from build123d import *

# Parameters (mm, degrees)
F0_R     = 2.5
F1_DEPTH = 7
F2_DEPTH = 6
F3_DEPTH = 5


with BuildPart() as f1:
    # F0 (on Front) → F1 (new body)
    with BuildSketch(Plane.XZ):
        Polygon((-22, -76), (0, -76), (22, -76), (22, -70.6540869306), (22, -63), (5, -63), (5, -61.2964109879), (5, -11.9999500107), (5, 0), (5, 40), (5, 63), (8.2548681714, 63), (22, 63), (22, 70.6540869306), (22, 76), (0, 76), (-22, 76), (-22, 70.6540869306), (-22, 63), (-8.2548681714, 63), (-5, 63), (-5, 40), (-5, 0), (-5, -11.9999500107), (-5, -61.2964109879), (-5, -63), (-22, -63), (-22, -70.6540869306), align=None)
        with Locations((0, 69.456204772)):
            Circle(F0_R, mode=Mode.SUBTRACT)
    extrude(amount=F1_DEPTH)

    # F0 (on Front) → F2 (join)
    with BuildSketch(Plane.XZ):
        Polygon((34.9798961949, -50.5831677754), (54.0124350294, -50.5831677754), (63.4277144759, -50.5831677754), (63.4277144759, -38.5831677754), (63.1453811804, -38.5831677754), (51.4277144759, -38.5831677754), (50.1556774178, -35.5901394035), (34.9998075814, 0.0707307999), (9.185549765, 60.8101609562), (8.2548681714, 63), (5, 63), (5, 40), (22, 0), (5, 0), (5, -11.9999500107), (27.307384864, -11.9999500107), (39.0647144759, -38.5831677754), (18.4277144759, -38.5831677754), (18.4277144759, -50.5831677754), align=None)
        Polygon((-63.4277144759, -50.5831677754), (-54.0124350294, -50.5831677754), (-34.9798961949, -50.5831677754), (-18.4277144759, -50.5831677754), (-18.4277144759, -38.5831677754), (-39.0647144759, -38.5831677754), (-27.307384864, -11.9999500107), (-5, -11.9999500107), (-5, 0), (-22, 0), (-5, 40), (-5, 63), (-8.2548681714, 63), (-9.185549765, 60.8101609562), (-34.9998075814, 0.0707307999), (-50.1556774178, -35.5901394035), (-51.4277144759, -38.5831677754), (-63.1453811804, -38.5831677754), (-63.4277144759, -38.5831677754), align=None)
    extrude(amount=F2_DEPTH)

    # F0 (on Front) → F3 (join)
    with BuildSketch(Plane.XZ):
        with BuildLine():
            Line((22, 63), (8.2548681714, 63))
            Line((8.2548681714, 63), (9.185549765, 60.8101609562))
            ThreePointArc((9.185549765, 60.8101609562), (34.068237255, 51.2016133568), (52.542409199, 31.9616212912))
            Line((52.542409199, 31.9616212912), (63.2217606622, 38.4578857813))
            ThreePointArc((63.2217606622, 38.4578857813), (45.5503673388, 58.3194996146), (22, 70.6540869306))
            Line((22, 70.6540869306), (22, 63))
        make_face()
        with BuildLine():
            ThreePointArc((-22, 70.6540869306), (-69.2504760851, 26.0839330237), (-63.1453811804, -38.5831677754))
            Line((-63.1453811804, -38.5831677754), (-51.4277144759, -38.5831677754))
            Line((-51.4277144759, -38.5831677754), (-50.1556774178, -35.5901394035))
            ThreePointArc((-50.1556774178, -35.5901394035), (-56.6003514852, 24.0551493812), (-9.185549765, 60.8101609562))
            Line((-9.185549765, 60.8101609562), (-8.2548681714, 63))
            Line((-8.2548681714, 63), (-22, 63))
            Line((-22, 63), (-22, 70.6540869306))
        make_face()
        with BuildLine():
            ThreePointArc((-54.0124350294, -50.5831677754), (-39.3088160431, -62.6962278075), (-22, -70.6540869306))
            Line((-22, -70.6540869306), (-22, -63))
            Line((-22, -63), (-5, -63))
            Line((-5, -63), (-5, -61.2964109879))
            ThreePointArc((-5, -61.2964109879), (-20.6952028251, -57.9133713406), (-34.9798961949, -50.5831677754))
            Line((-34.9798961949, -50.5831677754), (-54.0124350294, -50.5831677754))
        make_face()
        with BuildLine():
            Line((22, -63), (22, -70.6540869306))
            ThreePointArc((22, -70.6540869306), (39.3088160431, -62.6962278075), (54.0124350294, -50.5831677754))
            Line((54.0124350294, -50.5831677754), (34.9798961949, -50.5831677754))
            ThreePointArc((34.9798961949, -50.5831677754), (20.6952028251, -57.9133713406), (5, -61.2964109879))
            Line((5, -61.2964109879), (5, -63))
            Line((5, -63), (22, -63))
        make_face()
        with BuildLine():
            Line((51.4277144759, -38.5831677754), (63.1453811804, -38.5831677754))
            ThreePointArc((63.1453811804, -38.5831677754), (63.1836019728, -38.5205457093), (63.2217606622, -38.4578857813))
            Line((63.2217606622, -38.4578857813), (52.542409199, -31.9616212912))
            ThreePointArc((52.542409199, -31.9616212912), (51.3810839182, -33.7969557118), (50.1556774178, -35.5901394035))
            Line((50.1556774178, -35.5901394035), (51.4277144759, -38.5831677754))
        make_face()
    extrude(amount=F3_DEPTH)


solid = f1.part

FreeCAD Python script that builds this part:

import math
import FreeCAD as App
import Part
import Sketcher
Q = App.Units.Quantity


def add_polygon(sketch, points):
    """Adds a closed chain of lines whose ends are joined by coincident constraints."""
    first, n = sketch.GeometryCount, len(points)
    for a, b in zip(points, points[1:] + points[:1]):
        sketch.addGeometry(Part.LineSegment(App.Vector(*a, 0), App.Vector(*b, 0)), False)
    for i in range(n):
        sketch.addConstraint(Sketcher.Constraint("Coincident", first + i, 2, first + (i + 1) % n, 1))

doc = App.newDocument("Part")
params = doc.addObject("Spreadsheet::Sheet", "Params")
for row, (alias, value) in enumerate([
    ("sketch1_diameter", "5 mm"),
    ("sketch1_width", "44 mm"),
    ("sketch1_width2", "17 mm"),
    ("sketch1_height", "13 mm"),
    ("sketch1_height2", "126 mm"),
    ("pad1_length", "7 mm"),
    ("sketch2_width", "12 mm"),
    ("sketch2_width2", "17 mm"),
    ("sketch2_width3", "45 mm"),
    ("sketch2_height", "23 mm"),
    ("pad2_length", "6 mm"),
    ("sketch3_radius", "74 mm"),
    ("sketch3_radius2", "61.5 mm"),
    ("sketch3_width", "17 mm"),
    ("pad3_length", "5 mm"),
], start=1):
    params.set(f"A{row}", alias)
    params.set(f"B{row}", "=" + value)
    params.setAlias(f"B{row}", alias)

body = doc.addObject("PartDesign::Body", "Body")

# Sketch on XZ plane
sketch1 = body.newObject("Sketcher::SketchObject", "Sketch")
sketch1.AttachmentSupport = (doc.getObject("XZ_Plane"), [""])
sketch1.MapMode = "FlatFace"
add_polygon(sketch1, [(-22, -76), (22, -76), (22, -63), (5, -63), (5, 63), (22, 63), (22, 76), (-22, 76), (-22, 63), (-5, 63), (-5, -63), (-22, -63)])  # lines 0-11
sketch1.addGeometry(Part.Circle(App.Vector(0, 69.456205, 0), App.Vector(0, 0, 1), 2.5), False)  # 12
sketch1.addConstraint([
    Sketcher.Constraint("Horizontal", 0),
    Sketcher.Constraint("Vertical", 1),
    Sketcher.Constraint("Horizontal", 2),
    Sketcher.Constraint("Vertical", 3),
    Sketcher.Constraint("Horizontal", 4),
    Sketcher.Constraint("Vertical", 5),
    Sketcher.Constraint("Horizontal", 6),
    Sketcher.Constraint("Vertical", 7),
    Sketcher.Constraint("Horizontal", 8),
    Sketcher.Constraint("Vertical", 9),
    Sketcher.Constraint("Horizontal", 10),
    Sketcher.Constraint("Vertical", 11),
    Sketcher.Constraint("Symmetric", 0, 2, 6, 2, -1, 1),
    Sketcher.Constraint("Symmetric", 2, 2, 8, 2, -1, 1),
    Sketcher.Constraint("Symmetric", 4, 2, 10, 2, -1, 1),
    Sketcher.Constraint("Symmetric", 4, 2, 7, 2, -2),
    Sketcher.Constraint("PointOnObject", 12, 3, -2),
    Sketcher.Constraint("Diameter", 12, Q("5 mm")),
    Sketcher.Constraint("DistanceX", 0, 1, 0, 2, Q("44 mm")),
    Sketcher.Constraint("DistanceX", 2, 2, 2, 1, Q("17 mm")),
    Sketcher.Constraint("DistanceY", 1, 1, 1, 2, Q("13 mm")),
    Sketcher.Constraint("DistanceY", 3, 1, 3, 2, Q("126 mm")),
    Sketcher.Constraint("DistanceY", -1, 1, 12, 3, Q("69.456205 mm")),
])
sketch1.setExpression("Constraints[29]", "Params.sketch1_diameter")
sketch1.setExpression("Constraints[30]", "Params.sketch1_width")
sketch1.setExpression("Constraints[31]", "Params.sketch1_width2")
sketch1.setExpression("Constraints[32]", "Params.sketch1_height")
sketch1.setExpression("Constraints[33]", "Params.sketch1_height2")
pad1 = body.newObject("PartDesign::Pad", "Pad")
pad1.Profile = sketch1
pad1.setExpression("Length", "Params.pad1_length")

# Sketch on XZ plane
sketch2 = body.newObject("Sketcher::SketchObject", "Sketch001")
sketch2.AttachmentSupport = (doc.getObject("XZ_Plane"), [""])
sketch2.MapMode = "FlatFace"
add_polygon(sketch2, [(63.427714, -50.583168), (63.427714, -38.583168), (51.427714, -38.583168), (50.155677, -35.590139), (9.18555, 60.810161), (8.254868, 63), (5, 63), (5, 40), (22, 0), (5, 0), (5, -11.99995), (27.307385, -11.99995), (39.064714, -38.583168), (18.427714, -38.583168), (18.427714, -50.583168)])  # lines 0-14
add_polygon(sketch2, [(-63.427714, -50.583168), (-18.427714, -50.583168), (-18.427714, -38.583168), (-39.064714, -38.583168), (-27.307385, -11.99995), (-5, -11.99995), (-5, 0), (-22, 0), (-5, 40), (-5, 63), (-8.254868, 63), (-9.18555, 60.810161), (-50.155677, -35.590139), (-51.427714, -38.583168), (-63.427714, -38.583168)])  # lines 15-29
sketch2.addConstraint([
    Sketcher.Constraint("Vertical", 0),
    Sketcher.Constraint("Horizontal", 1),
    Sketcher.Constraint("Horizontal", 5),
    Sketcher.Constraint("Vertical", 6),
    Sketcher.Constraint("Horizontal", 8),
    Sketcher.Constraint("Vertical", 9),
    Sketcher.Constraint("Horizontal", 10),
    Sketcher.Constraint("Horizontal", 12),
    Sketcher.Constraint("Vertical", 13),
    Sketcher.Constraint("Horizontal", 14),
    Sketcher.Constraint("Horizontal", 15),
    Sketcher.Constraint("Vertical", 16),
    Sketcher.Constraint("Horizontal", 17),
    Sketcher.Constraint("Horizontal", 19),
    Sketcher.Constraint("Vertical", 20),
    Sketcher.Constraint("Horizontal", 21),
    Sketcher.Constraint("Vertical", 23),
    Sketcher.Constraint("Horizontal", 24),
    Sketcher.Constraint("Horizontal", 28),
    Sketcher.Constraint("Vertical", 29),
    Sketcher.Constraint("Symmetric", 8, 2, 20, 2, -1, 1),
    Sketcher.Constraint("Symmetric", 13, 2, 15, 2, -2),
    Sketcher.Constraint("Symmetric", 11, 2, 17, 2, -2),
    Sketcher.Constraint("Symmetric", 10, 2, 18, 2, -2),
    Sketcher.Constraint("Symmetric", 7, 2, 21, 2, -2),
    Sketcher.Constraint("Symmetric", 6, 2, 22, 2, -2),
    Sketcher.Constraint("Symmetric", 4, 2, 24, 2, -2),
    Sketcher.Constraint("Symmetric", 3, 2, 25, 2, -2),
    Sketcher.Constraint("Symmetric", 2, 2, 26, 2, -2),
    Sketcher.Constraint("Symmetric", 1, 2, 27, 2, -2),
    Sketcher.Constraint("Parallel", 2, 3),
    Sketcher.Constraint("Parallel", 3, 4),
    Sketcher.Constraint("Parallel", 4, 7),
    Sketcher.Constraint("Horizontal", 1, 2, 11, 2),
    Sketcher.Constraint("Vertical", 6, 2, 8, 2),
    Sketcher.Constraint("Equal", 14, 15),
    Sketcher.Constraint("Equal", 28, 0),
    Sketcher.Constraint("DistanceX", 1, 2, 1, 1, Q("12 mm")),
    Sketcher.Constraint("DistanceX", 8, 2, 8, 1, Q("17 mm")),
    Sketcher.Constraint("DistanceX", 14, 1, 14, 2, Q("45 mm")),
    Sketcher.Constraint("DistanceY", 6, 2, 6, 1, Q("23 mm")),
    Sketcher.Constraint("DistanceY", -1, 1, 4, 2, Q("63 mm")),
    Sketcher.Constraint("DistanceX", -1, 1, 5, 2, Q("5 mm")),
    Sketcher.Constraint("DistanceX", 12, 2, 12, 1, Q("20.637 mm")),
    Sketcher.Constraint("DistanceX", 5, 2, 5, 1, Q("3.254868 mm")),
    Sketcher.Constraint("DistanceY", 9, 2, 9, 1, Q("11.99995 mm")),
    Sketcher.Constraint("DistanceY", 2, 2, 3, 2, Q("96.4003 mm")),
    Sketcher.Constraint("DistanceX", 25, 2, 3, 2, Q("18.3711 mm")),
    Sketcher.Constraint("Distance", 2, Q("3.252122 mm")),
    Sketcher.Constraint("DistanceX", 10, 1, 10, 2, Q("22.307385 mm")),
])
sketch2.setExpression("Constraints[67]", "Params.sketch2_width")
sketch2.setExpression("Constraints[68]", "Params.sketch2_width2")
sketch2.setExpression("Constraints[69]", "Params.sketch2_width3")
sketch2.setExpression("Constraints[70]", "Params.sketch2_height")
pad2 = body.newObject("PartDesign::Pad", "Pad001")
pad2.Profile = sketch2
pad2.setExpression("Length", "Params.pad2_length")

# Sketch on XZ plane
sketch3 = body.newObject("Sketcher::SketchObject", "Sketch002")
sketch3.AttachmentSupport = (doc.getObject("XZ_Plane"), [""])
sketch3.MapMode = "FlatFace"
sketch3.addGeometry([
    Part.LineSegment(App.Vector(22, 63, 0), App.Vector(8.254868, 63, 0)),  # 0
    Part.LineSegment(App.Vector(8.254868, 63, 0), App.Vector(9.18555, 60.810161, 0)),  # 1
    Part.ArcOfCircle(Part.Circle(App.Vector(0, 0, 0), App.Vector(0, 0, 1), 61.5), math.radians(31.312208), math.radians(81.410246)),  # 2
    Part.LineSegment(App.Vector(52.542409, 31.961621, 0), App.Vector(63.221761, 38.457886, 0)),  # 3
    Part.ArcOfCircle(Part.Circle(App.Vector(0, 0, 0), App.Vector(0, 0, 1), 74), math.radians(31.312208), math.radians(72.704655)),  # 4
    Part.LineSegment(App.Vector(22, 70.654087, 0), App.Vector(22, 63, 0)),  # 5
    Part.ArcOfCircle(Part.Circle(App.Vector(0, 0, 0), App.Vector(0, 0, 1), 74), math.radians(107.295345), math.radians(211.425815)),  # 6
    Part.LineSegment(App.Vector(-63.145381, -38.583168, 0), App.Vector(-51.427714, -38.583168, 0)),  # 7
    Part.LineSegment(App.Vector(-51.427714, -38.583168, 0), App.Vector(-50.155677, -35.590139, 0)),  # 8
    Part.ArcOfCircle(Part.Circle(App.Vector(0, 0, 0), App.Vector(0, 0, 1), 61.5), math.radians(98.589754), math.radians(215.359262)),  # 9
    Part.LineSegment(App.Vector(-9.18555, 60.810161, 0), App.Vector(-8.254868, 63, 0)),  # 10
    Part.LineSegment(App.Vector(-8.254868, 63, 0), App.Vector(-22, 63, 0)),  # 11
    Part.LineSegment(App.Vector(-22, 63, 0), App.Vector(-22, 70.654087, 0)),  # 12
    Part.ArcOfCircle(Part.Circle(App.Vector(0, 0, 0), App.Vector(0, 0, 1), 74), math.radians(-136.877824), math.radians(-107.295345)),  # 13
    Part.LineSegment(App.Vector(-22, -70.654087, 0), App.Vector(-22, -63, 0)),  # 14
    Part.LineSegment(App.Vector(-22, -63, 0), App.Vector(-5, -63, 0)),  # 15
    Part.LineSegment(App.Vector(-5, -63, 0), App.Vector(-5, -61.296411, 0)),  # 16
    Part.ArcOfCircle(Part.Circle(App.Vector(0, 0, 0), App.Vector(0, 0, 1), 61.5), math.radians(-124.665112), math.radians(-94.66334)),  # 17
    Part.LineSegment(App.Vector(-34.979896, -50.583168, 0), App.Vector(-54.012435, -50.583168, 0)),  # 18
    Part.LineSegment(App.Vector(22, -63, 0), App.Vector(22, -70.654087, 0)),  # 19
    Part.ArcOfCircle(Part.Circle(App.Vector(0, 0, 0), App.Vector(0, 0, 1), 74), math.radians(-72.704655), math.radians(-43.122176)),  # 20
    Part.LineSegment(App.Vector(54.012435, -50.583168, 0), App.Vector(34.979896, -50.583168, 0)),  # 21
    Part.ArcOfCircle(Part.Circle(App.Vector(0, 0, 0), App.Vector(0, 0, 1), 61.5), math.radians(-85.33666), math.radians(-55.334888)),  # 22
    Part.LineSegment(App.Vector(5, -61.296411, 0), App.Vector(5, -63, 0)),  # 23
    Part.LineSegment(App.Vector(5, -63, 0), App.Vector(22, -63, 0)),  # 24
    Part.LineSegment(App.Vector(51.427714, -38.583168, 0), App.Vector(63.145381, -38.583168, 0)),  # 25
    Part.ArcOfCircle(Part.Circle(App.Vector(0.000002, -0.000001, 0), App.Vector(0, 0, 1), 73.999998), math.radians(-31.425815), math.radians(-31.312208)),  # 26
    Part.LineSegment(App.Vector(63.221761, -38.457886, 0), App.Vector(52.542409, -31.961621, 0)),  # 27
    Part.ArcOfCircle(Part.Circle(App.Vector(0, 0, 0), App.Vector(0, 0, 1), 61.5), math.radians(-35.359262), math.radians(-31.312208)),  # 28
    Part.LineSegment(App.Vector(50.155677, -35.590139, 0), App.Vector(51.427714, -38.583168, 0)),  # 29
], False)
sketch3.addConstraint([
    Sketcher.Constraint("Coincident", 0, 2, 1, 1),
    Sketcher.Constraint("Coincident", 1, 2, 2, 2),
    Sketcher.Constraint("Coincident", 2, 1, 3, 1),
    Sketcher.Constraint("Coincident", 3, 2, 4, 1),
    Sketcher.Constraint("Coincident", 4, 2, 5, 1),
    Sketcher.Constraint("Coincident", 5, 2, 0, 1),
    Sketcher.Constraint("Coincident", 6, 2, 7, 1),
    Sketcher.Constraint("Coincident", 7, 2, 8, 1),
    Sketcher.Constraint("Coincident", 8, 2, 9, 2),
    Sketcher.Constraint("Coincident", 9, 1, 10, 1),
    Sketcher.Constraint("Coincident", 10, 2, 11, 1),
    Sketcher.Constraint("Coincident", 11, 2, 12, 1),
    Sketcher.Constraint("Coincident", 12, 2, 6, 1),
    Sketcher.Constraint("Coincident", 13, 2, 14, 1),
    Sketcher.Constraint("Coincident", 14, 2, 15, 1),
    Sketcher.Constraint("Coincident", 15, 2, 16, 1),
    Sketcher.Constraint("Coincident", 16, 2, 17, 2),
    Sketcher.Constraint("Coincident", 17, 1, 18, 1),
    Sketcher.Constraint("Coincident", 18, 2, 13, 1),
    Sketcher.Constraint("Coincident", 19, 2, 20, 1),
    Sketcher.Constraint("Coincident", 20, 2, 21, 1),
    Sketcher.Constraint("Coincident", 21, 2, 22, 2),
    Sketcher.Constraint("Coincident", 22, 1, 23, 1),
    Sketcher.Constraint("Coincident", 23, 2, 24, 1),
    Sketcher.Constraint("Coincident", 24, 2, 19, 1),
    Sketcher.Constraint("Coincident", 25, 2, 26, 1),
    Sketcher.Constraint("Coincident", 26, 2, 27, 1),
    Sketcher.Constraint("Coincident", 27, 2, 28, 2),
    Sketcher.Constraint("Coincident", 28, 1, 29, 1),
    Sketcher.Constraint("Coincident", 29, 2, 25, 1),
    Sketcher.Constraint("Horizontal", 0),
    Sketcher.Constraint("Vertical", 5),
    Sketcher.Constraint("Horizontal", 7),
    Sketcher.Constraint("Horizontal", 11),
    Sketcher.Constraint("Vertical", 12),
    Sketcher.Constraint("Vertical", 14),
    Sketcher.Constraint("Horizontal", 15),
    Sketcher.Constraint("Vertical", 16),
    Sketcher.Constraint("Horizontal", 18),
    Sketcher.Constraint("Vertical", 19),
    Sketcher.Constraint("Horizontal", 21),
    Sketcher.Constraint("Vertical", 23),
    Sketcher.Constraint("Horizontal", 24),
    Sketcher.Constraint("Horizontal", 25),
    Sketcher.Constraint("Coincident", 2, 3, -1, 1),
    Sketcher.Constraint("Coincident", 4, 3, -1, 1),
    Sketcher.Constraint("Coincident", 6, 3, -1, 1),
    Sketcher.Constraint("Coincident", 9, 3, -1, 1),
    Sketcher.Constraint("Coincident", 13, 3, -1, 1),
    Sketcher.Constraint("Coincident", 17, 3, -1, 1),
    Sketcher.Constraint("Coincident", 20, 3, -1, 1),
    Sketcher.Constraint("Coincident", 22, 3, -1, 1),
    Sketcher.Constraint("Coincident", 26, 3, -1, 1),
    Sketcher.Constraint("Coincident", 28, 3, -1, 1),
    Sketcher.Constraint("Equal", 4, 6),
    Sketcher.Constraint("Equal", 2, 9),
    Sketcher.Constraint("Equal", 6, 13),
    Sketcher.Constraint("Equal", 9, 17),
    Sketcher.Constraint("Equal", 13, 20),
    Sketcher.Constraint("Equal", 17, 22),
    Sketcher.Constraint("Equal", 20, 26),
    Sketcher.Constraint("Equal", 22, 28),
    Sketcher.Constraint("Symmetric", 5, 2, 14, 2, -1, 1),
    Sketcher.Constraint("Symmetric", 11, 2, 24, 2, -1, 1),
    Sketcher.Constraint("Symmetric", 0, 2, 10, 2, -2),
    Sketcher.Constraint("Symmetric", 7, 2, 29, 2, -2),
    Sketcher.Constraint("Parallel", 8, 10),
    Sketcher.Constraint("Parallel", 1, 29),
    Sketcher.Constraint("Horizontal", 1, 2, 9, 1),
    Sketcher.Constraint("Horizontal", 4, 2, 12, 2),
    Sketcher.Constraint("Horizontal", 18, 2, 20, 2),
    Sketcher.Constraint("Horizontal", 16, 2, 22, 1),
    Sketcher.Constraint("Vertical", 3, 2, 26, 2),
    Sketcher.Constraint("Vertical", 2, 1, 27, 2),
    Sketcher.Constraint("Radius", 4, Q("74 mm")),
    Sketcher.Constraint("Radius", 2, Q("61.5 mm")),
    Sketcher.Constraint("DistanceX", 15, 1, 15, 2, Q("17 mm")),
    Sketcher.Constraint("DistanceY", -1, 1, 0, 2, Q("63 mm")),
    Sketcher.Constraint("DistanceX", -1, 1, 4, 2, Q("22 mm")),
    Sketcher.Constraint("DistanceY", 17, 1, 7, 2, Q("12 mm")),
    Sketcher.Constraint("DistanceX", 0, 2, 0, 1, Q("13.745132 mm")),
    Sketcher.Constraint("DistanceX", 18, 2, 18, 1, Q("19.032539 mm")),
    Sketcher.Constraint("DistanceY", 3, 2, 4, 2, Q("32.196201 mm")),
    Sketcher.Constraint("DistanceX", 9, 1, 1, 2, Q("18.3711 mm")),
    Sketcher.Constraint("Distance", 8, Q("3.252122 mm")),
    Sketcher.Constraint("DistanceX", -1, 1, 2, 1, Q("52.542409 mm")),
])
sketch3.setExpression("Constraints[74]", "Params.sketch3_radius")
sketch3.setExpression("Constraints[75]", "Params.sketch3_radius2")
sketch3.setExpression("Constraints[76]", "Params.sketch3_width")
pad3 = body.newObject("PartDesign::Pad", "Pad002")
pad3.Profile = sketch3
pad3.setExpression("Length", "Params.pad3_length")

doc.recompute()
